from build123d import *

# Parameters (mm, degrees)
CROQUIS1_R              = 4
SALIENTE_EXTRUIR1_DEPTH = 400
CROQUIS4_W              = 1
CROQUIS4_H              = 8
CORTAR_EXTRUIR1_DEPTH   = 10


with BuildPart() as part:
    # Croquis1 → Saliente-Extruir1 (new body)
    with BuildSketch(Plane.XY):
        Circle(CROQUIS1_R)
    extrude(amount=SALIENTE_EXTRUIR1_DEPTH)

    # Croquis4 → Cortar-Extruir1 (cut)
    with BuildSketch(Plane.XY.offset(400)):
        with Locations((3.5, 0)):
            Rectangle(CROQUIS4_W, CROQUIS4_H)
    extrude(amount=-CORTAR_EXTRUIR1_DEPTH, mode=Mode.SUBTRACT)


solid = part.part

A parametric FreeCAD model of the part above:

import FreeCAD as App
import Part
import Sketcher
Q = App.Units.Quantity

doc = App.newDocument("Part")
params = doc.addObject("Spreadsheet::Sheet", "Params")
for row, (alias, value) in enumerate([
    ("sketch1_diameter", "8 mm"),
    ("pad1_length", "400 mm"),
    ("sketch2_width", "1 mm"),
    ("sketch2_height", "8 mm"),
    ("pocket1_length", "10 mm"),
], start=1):
    params.set(f"A{row}", alias)
    params.set(f"B{row}", "=" + value)
    params.setAlias(f"B{row}", alias)

body = doc.addObject("PartDesign::Body", "Body")

# Sketch on XY plane
sketch1 = doc.addObject("Sketcher::SketchObject", "Sketch")
body.addObject(sketch1)
sketch1.AttachmentSupport = (doc.XY_Plane, [""])
sketch1.MapMode = "FlatFace"
sketch1.addGeometry(Part.Circle(App.Vector(0, 0, 0), App.Vector(0, 0, 1), 4), False)
sketch1.addConstraint(Sketcher.Constraint("Coincident", 0, 3, -1, 1))
sketch1.addConstraint(Sketcher.Constraint("Diameter", 0, Q("8 mm")))
sketch1.setExpression("Constraints[1]", "Params.sketch1_diameter")
pad1 = doc.addObject("PartDesign::Pad", "Pad")
body.addObject(pad1)
pad1.Profile = sketch1
pad1.setExpression("Length", "Params.pad1_length")

# Sketch on XY plane
sketch2 = doc.addObject("Sketcher::SketchObject", "Sketch001")
body.addObject(sketch2)
sketch2.AttachmentSupport = (doc.XY_Plane, [""])
sketch2.MapMode = "FlatFace"
sketch2.AttachmentOffset = App.Placement(App.Vector(0, 0, 400), App.Rotation())
sketch2.addGeometry(Part.LineSegment(App.Vector(3, 4, 0), App.Vector(3, -4, 0)), False)
sketch2.addGeometry(Part.LineSegment(App.Vector(3, -4, 0), App.Vector(4, -4, 0)), False)
sketch2.addGeometry(Part.LineSegment(App.Vector(4, -4, 0), App.Vector(4, 4, 0)), False)
sketch2.addGeometry(Part.LineSegment(App.Vector(4, 4, 0), App.Vector(3, 4, 0)), False)
sketch2.addConstraint(Sketcher.Constraint("Coincident", 0, 2, 1, 1))
sketch2.addConstraint(Sketcher.Constraint("Coincident", 1, 2, 2, 1))
sketch2.addConstraint(Sketcher.Constraint("Coincident", 2, 2, 3, 1))
sketch2.addConstraint(Sketcher.Constraint("Coincident", 3, 2, 0, 1))
sketch2.addConstraint(Sketcher.Constraint("Vertical", 0))
sketch2.addConstraint(Sketcher.Constraint("Horizontal", 1))
sketch2.addConstraint(Sketcher.Constraint("Vertical", 2))
sketch2.addConstraint(Sketcher.Constraint("Horizontal", 3))
sketch2.addConstraint(Sketcher.Constraint("DistanceX", 1, 1, 1, 2, Q("1 mm")))
sketch2.addConstraint(Sketcher.Constraint("DistanceY", 0, 2, 0, 1, Q("8 mm")))
sketch2.addConstraint(Sketcher.Constraint("DistanceX", -1, 1, 0, 2, Q("3 mm")))
sketch2.addConstraint(Sketcher.Constraint("DistanceY", 0, 2, -1, 1, Q("4 mm")))
sketch2.setExpression("Constraints[8]", "Params.sketch2_width")
sketch2.setExpression("Constraints[9]", "Params.sketch2_height")
pocket1 = doc.addObject("PartDesign::Pocket", "Pocket")
body.addObject(pocket1)
pocket1.Profile = sketch2
pocket1.setExpression("Length", "Params.pocket1_length")

doc.recompute()
